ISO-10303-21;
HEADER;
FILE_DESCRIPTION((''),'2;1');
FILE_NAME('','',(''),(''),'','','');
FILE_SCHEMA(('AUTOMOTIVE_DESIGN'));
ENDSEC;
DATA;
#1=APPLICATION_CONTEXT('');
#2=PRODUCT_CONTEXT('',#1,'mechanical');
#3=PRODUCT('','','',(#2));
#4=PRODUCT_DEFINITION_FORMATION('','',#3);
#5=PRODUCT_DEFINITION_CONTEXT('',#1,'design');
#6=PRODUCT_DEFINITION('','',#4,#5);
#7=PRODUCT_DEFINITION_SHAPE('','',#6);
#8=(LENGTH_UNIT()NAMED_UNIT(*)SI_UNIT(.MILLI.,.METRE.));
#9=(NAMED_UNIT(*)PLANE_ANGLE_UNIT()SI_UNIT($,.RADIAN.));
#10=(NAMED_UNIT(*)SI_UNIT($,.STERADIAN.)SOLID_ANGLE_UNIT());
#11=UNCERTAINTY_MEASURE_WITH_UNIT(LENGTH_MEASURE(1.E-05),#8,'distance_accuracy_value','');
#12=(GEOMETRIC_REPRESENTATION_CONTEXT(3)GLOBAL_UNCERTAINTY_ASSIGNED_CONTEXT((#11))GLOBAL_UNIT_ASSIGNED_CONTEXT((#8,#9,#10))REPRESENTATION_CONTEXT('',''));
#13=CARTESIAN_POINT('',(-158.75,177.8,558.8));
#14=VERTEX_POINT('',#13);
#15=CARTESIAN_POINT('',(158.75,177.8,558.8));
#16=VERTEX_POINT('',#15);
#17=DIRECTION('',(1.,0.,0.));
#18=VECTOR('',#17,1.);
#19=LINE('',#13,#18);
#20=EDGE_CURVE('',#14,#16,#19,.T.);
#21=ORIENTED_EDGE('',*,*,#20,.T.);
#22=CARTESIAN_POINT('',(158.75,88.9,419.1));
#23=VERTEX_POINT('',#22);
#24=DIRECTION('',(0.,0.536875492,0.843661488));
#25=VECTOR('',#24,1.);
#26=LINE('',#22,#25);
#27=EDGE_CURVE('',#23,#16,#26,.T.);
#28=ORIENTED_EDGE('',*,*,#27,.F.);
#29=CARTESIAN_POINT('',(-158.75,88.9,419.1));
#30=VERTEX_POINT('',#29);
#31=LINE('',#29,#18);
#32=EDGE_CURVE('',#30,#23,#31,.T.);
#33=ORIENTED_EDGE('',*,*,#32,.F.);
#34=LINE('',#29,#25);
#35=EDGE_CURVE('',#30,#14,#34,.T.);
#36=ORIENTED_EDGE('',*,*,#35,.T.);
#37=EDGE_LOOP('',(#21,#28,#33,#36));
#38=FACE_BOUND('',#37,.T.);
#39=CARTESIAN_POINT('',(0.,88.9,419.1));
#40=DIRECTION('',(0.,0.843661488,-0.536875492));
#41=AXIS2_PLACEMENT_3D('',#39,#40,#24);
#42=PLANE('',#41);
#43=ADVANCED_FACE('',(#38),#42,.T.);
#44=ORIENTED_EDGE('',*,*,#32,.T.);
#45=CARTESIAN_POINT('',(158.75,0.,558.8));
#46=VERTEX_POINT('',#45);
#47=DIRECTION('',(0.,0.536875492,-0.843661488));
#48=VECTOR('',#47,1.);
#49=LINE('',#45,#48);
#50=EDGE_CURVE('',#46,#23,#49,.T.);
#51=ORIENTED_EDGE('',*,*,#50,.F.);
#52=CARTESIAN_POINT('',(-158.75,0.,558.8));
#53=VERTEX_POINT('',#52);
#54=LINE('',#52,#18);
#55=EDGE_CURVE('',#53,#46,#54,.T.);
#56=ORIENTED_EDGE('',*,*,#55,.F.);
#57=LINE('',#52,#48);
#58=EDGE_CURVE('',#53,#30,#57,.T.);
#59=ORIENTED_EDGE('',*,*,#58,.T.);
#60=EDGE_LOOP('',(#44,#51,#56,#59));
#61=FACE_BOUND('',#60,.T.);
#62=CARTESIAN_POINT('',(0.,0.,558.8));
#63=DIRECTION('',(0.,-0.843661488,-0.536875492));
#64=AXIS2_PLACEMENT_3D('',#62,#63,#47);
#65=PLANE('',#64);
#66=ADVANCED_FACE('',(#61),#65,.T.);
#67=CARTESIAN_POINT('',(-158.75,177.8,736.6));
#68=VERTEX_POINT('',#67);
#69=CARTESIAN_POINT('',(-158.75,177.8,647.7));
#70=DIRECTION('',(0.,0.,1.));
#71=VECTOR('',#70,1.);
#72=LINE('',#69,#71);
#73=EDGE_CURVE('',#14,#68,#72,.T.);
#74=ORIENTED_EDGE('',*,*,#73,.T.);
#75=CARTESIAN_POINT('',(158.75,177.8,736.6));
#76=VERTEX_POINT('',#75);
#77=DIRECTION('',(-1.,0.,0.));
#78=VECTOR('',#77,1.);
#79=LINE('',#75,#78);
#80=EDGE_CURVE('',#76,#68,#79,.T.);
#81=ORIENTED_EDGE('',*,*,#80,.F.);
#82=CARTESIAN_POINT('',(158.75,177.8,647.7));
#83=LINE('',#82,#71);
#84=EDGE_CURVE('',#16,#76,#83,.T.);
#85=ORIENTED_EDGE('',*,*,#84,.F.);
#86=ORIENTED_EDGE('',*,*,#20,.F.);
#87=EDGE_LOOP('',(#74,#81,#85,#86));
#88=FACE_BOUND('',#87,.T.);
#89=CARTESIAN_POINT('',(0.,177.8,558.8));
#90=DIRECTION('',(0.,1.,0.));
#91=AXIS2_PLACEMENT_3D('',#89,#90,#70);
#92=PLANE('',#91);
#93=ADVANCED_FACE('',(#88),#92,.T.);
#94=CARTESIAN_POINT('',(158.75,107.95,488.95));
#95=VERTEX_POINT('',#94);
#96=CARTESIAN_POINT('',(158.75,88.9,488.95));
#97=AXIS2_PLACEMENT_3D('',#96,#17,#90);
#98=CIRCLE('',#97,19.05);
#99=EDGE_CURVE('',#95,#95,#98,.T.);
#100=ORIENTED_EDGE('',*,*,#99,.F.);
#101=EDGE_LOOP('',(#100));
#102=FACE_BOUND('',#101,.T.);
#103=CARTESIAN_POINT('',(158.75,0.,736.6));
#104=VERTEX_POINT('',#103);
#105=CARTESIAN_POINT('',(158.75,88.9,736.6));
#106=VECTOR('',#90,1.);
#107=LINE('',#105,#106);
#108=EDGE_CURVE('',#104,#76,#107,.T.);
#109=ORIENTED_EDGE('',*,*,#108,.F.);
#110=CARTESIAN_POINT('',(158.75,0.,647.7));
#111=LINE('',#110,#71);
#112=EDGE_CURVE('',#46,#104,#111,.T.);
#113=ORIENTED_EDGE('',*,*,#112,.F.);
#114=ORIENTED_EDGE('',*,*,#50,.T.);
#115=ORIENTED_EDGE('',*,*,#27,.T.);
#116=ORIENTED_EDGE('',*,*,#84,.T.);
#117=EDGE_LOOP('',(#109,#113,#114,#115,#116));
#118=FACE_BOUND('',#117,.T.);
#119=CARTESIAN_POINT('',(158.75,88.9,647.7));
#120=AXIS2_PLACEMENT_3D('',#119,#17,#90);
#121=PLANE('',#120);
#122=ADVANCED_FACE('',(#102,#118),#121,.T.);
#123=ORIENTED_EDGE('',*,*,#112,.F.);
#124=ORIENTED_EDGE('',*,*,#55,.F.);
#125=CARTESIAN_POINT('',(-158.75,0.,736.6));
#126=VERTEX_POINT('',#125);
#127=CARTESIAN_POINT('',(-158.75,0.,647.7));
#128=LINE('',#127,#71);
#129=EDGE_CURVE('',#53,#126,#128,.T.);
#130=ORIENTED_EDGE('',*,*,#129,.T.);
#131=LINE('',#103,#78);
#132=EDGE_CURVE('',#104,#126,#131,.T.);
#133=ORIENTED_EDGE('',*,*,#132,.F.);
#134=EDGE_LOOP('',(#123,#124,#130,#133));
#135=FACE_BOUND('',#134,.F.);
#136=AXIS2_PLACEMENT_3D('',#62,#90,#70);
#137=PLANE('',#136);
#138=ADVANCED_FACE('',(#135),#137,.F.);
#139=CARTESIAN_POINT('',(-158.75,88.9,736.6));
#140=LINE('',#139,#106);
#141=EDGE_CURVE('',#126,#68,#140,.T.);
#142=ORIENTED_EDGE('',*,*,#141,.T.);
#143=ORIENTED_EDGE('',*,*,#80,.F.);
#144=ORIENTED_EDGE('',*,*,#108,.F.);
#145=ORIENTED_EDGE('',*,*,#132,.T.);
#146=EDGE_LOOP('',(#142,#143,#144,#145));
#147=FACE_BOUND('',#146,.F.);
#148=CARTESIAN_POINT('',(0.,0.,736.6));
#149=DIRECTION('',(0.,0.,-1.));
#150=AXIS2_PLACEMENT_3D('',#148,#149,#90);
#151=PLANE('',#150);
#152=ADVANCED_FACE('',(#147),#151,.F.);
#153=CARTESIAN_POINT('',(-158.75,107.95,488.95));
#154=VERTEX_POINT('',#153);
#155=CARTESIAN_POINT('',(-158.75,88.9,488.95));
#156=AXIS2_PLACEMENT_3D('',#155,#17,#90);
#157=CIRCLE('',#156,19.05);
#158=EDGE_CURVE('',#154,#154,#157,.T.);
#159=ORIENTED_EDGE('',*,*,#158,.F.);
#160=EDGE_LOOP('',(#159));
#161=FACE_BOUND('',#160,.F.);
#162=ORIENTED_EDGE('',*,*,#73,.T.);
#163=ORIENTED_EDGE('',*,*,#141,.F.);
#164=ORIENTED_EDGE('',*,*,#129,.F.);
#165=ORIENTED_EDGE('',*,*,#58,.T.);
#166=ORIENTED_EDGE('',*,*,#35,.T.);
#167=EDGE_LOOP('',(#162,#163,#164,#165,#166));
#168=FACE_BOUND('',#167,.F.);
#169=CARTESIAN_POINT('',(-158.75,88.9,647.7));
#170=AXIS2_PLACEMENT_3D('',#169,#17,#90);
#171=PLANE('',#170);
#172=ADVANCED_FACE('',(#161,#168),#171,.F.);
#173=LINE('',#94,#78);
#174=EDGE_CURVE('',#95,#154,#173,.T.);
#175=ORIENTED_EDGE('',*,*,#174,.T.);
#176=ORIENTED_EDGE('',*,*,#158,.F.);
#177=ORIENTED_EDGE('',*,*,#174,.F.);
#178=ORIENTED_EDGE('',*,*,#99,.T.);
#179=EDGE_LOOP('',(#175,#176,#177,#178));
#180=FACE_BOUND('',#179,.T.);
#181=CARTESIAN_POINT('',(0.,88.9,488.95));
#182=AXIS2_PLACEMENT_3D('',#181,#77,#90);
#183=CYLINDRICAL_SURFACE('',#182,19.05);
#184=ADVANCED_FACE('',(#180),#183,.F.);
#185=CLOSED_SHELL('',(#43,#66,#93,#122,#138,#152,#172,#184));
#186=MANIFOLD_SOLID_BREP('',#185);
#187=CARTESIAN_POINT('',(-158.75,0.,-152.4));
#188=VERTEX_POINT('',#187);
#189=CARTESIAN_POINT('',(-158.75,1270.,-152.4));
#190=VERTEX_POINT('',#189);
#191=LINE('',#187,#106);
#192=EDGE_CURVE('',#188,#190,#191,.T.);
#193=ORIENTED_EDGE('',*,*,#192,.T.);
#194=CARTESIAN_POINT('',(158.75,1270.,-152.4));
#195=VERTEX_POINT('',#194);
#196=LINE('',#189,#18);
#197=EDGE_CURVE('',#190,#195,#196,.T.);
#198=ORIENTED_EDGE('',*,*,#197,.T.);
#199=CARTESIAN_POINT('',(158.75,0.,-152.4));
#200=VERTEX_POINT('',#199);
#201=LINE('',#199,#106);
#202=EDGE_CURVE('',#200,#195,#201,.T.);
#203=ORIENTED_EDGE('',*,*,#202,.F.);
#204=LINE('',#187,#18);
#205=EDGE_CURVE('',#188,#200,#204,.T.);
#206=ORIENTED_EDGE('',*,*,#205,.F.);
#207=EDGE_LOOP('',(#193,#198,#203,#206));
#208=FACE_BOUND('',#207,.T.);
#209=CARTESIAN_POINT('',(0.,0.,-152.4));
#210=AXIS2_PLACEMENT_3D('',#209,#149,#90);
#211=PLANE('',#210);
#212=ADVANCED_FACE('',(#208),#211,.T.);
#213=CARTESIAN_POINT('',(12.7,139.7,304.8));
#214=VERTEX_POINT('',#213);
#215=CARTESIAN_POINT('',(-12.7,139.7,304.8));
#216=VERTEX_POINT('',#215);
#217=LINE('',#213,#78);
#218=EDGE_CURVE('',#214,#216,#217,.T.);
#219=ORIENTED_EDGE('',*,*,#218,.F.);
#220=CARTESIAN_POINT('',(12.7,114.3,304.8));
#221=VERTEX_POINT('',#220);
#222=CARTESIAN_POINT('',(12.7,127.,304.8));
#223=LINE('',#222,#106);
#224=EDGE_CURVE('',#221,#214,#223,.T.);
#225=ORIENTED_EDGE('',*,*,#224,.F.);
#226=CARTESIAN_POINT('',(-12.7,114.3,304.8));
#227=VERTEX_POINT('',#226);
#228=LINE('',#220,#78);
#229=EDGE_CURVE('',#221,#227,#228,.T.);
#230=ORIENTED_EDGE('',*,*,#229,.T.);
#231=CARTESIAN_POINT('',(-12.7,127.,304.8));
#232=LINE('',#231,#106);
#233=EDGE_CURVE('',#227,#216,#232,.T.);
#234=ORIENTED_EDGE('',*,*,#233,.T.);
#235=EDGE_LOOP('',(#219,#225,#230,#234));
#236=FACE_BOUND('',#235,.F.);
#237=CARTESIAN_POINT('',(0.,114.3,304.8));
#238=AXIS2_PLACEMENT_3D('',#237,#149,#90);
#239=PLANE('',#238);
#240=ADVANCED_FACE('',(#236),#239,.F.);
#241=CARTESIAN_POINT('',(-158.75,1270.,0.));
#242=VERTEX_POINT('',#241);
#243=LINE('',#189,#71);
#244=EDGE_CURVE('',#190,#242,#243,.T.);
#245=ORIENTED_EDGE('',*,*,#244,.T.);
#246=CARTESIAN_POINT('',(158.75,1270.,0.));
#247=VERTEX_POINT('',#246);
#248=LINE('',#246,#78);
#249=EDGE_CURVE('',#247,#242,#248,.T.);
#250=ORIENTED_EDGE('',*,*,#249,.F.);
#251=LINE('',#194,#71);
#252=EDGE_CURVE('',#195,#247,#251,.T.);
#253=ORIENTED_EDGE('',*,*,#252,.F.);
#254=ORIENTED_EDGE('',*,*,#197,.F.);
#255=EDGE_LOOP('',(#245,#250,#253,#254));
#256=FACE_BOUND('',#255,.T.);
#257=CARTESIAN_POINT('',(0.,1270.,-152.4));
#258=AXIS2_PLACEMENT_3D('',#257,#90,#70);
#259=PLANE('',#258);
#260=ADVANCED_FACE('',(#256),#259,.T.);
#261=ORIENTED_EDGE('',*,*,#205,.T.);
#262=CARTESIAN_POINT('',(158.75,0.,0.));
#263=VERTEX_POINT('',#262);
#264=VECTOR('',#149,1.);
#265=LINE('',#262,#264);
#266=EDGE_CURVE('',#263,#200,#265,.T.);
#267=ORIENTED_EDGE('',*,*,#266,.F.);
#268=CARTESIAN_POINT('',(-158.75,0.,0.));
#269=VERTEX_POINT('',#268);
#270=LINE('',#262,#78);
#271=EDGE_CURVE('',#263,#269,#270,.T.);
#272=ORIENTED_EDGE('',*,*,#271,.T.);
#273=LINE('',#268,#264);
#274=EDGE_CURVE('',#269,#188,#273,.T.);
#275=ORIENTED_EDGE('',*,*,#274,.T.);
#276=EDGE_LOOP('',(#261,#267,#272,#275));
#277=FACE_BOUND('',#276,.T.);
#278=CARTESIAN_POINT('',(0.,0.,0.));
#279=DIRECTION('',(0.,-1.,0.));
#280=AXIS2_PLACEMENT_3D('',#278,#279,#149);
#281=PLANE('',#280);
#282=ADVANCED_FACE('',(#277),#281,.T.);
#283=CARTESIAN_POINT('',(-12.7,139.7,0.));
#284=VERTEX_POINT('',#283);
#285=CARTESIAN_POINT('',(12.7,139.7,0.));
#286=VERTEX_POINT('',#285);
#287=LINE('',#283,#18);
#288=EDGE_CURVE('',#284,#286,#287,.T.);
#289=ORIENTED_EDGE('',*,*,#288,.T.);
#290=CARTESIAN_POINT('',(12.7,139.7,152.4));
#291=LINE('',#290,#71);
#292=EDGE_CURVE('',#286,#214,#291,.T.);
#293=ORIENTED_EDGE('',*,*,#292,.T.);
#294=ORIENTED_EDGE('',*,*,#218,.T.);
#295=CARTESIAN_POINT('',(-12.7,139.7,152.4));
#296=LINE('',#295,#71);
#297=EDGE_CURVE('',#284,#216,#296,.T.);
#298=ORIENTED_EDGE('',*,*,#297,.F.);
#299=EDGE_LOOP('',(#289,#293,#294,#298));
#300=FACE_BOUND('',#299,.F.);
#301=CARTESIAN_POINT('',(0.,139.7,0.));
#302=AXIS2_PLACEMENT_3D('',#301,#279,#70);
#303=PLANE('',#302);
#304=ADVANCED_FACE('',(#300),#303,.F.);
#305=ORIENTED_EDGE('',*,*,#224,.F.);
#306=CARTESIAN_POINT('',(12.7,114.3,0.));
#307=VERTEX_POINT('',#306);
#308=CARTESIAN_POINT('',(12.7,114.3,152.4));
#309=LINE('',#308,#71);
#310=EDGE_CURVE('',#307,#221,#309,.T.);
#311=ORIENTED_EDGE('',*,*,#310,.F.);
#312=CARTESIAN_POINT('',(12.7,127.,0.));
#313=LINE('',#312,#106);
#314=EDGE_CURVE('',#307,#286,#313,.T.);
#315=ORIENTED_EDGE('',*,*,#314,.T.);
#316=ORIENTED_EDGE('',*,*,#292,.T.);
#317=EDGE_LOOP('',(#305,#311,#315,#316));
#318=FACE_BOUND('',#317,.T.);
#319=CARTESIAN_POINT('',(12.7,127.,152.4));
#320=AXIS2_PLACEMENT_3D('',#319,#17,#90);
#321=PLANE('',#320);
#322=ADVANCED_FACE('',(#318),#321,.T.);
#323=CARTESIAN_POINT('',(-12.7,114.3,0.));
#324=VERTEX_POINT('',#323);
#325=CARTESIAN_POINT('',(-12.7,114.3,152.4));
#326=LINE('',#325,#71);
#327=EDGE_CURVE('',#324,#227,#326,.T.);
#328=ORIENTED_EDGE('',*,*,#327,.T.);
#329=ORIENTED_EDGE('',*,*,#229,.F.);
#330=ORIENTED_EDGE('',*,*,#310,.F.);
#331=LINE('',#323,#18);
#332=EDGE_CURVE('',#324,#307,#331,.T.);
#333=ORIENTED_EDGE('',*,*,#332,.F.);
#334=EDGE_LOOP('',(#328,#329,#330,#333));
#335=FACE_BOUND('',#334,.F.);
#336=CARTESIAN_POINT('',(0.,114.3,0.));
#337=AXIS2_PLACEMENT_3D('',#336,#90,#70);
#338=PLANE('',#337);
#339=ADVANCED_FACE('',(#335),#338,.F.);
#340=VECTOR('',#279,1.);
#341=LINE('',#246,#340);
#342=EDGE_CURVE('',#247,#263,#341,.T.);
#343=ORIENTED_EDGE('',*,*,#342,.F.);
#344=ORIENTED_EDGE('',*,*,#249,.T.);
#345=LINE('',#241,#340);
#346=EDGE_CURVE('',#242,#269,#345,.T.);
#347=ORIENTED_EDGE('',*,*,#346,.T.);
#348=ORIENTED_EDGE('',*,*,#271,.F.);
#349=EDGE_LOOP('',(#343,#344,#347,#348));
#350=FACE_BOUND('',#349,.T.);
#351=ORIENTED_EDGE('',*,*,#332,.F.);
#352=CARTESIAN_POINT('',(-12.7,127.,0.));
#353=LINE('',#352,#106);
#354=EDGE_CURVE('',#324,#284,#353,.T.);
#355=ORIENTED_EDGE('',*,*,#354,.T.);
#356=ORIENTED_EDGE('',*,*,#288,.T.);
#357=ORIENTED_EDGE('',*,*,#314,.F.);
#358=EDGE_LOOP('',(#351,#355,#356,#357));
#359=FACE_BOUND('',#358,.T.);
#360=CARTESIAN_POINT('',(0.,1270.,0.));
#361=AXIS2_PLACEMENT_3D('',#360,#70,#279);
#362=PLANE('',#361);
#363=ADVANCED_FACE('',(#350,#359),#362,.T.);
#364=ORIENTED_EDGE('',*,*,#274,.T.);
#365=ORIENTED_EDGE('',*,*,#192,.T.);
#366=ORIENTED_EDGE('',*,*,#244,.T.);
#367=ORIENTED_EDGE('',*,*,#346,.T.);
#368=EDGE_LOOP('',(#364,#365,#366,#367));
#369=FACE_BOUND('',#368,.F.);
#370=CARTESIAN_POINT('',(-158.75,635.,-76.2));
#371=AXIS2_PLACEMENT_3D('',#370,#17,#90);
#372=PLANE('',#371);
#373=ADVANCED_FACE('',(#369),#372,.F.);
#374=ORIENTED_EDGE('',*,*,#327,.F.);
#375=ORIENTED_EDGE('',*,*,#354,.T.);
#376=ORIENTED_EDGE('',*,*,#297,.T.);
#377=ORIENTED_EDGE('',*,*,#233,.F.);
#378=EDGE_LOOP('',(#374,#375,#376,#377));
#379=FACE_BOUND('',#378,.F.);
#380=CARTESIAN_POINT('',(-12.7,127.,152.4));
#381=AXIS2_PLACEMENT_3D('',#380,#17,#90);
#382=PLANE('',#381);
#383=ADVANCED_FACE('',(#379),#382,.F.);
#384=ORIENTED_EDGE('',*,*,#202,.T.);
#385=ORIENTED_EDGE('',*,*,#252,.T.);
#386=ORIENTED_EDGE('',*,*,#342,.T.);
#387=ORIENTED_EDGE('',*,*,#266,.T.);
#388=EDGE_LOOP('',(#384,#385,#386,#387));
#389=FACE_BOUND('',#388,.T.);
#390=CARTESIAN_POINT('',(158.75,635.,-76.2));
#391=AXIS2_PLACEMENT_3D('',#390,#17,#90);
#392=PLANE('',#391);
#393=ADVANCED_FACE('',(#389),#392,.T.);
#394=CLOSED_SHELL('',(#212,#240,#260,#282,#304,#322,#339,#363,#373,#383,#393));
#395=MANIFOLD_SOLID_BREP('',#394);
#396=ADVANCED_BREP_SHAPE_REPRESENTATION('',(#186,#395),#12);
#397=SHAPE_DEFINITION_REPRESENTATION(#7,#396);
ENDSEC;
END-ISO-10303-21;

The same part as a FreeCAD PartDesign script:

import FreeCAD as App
import Part
import Sketcher
Q = App.Units.Quantity


def add_polygon(sketch, points):
    """Adds a closed chain of lines whose ends are joined by coincident constraints."""
    first, n = sketch.GeometryCount, len(points)
    for a, b in zip(points, points[1:] + points[:1]):
        sketch.addGeometry(Part.LineSegment(App.Vector(*a, 0), App.Vector(*b, 0)), False)
    for i in range(n):
        sketch.addConstraint(Sketcher.Constraint("Coincident", first + i, 2, first + (i + 1) % n, 1))

doc = App.newDocument("Part")
body = doc.addObject("PartDesign::Body", "Body")
body.AllowCompound = True

# Sketch on YZ plane
sketch1 = body.newObject("Sketcher::SketchObject", "Sketch")
sketch1.AttachmentSupport = (doc.getObject("YZ_Plane"), [""])
sketch1.MapMode = "FlatFace"
add_polygon(sketch1, [(0, 737), (0, 559), (89, 419), (178, 559), (178, 737)])  # lines 0-4
sketch1.addGeometry(Part.Circle(App.Vector(89, 489, 0), App.Vector(0, 0, 1), 19), False)  # 5
add_polygon(sketch1, [(0, 0), (0, -152), (1270, -152), (1270, 0)])  # lines 6-9
sketch1.addConstraint([
    Sketcher.Constraint("Vertical", 0),
    Sketcher.Constraint("Vertical", 3),
    Sketcher.Constraint("Horizontal", 4),
    Sketcher.Constraint("Vertical", 6),
    Sketcher.Constraint("Horizontal", 7),
    Sketcher.Constraint("Vertical", 8),
    Sketcher.Constraint("Horizontal", 9),
    Sketcher.Constraint("Coincident", 9, 2, -1, 1),
    Sketcher.Constraint("PointOnObject", 0, 2, -2),
    Sketcher.Constraint("Horizontal", 0, 2, 2, 2),
    Sketcher.Constraint("Vertical", 5, 3, 1, 2),
    Sketcher.Constraint("Equal", 4, 0),
    Sketcher.Constraint("Equal", 1, 2),
    Sketcher.Constraint("Diameter", 5, Q("1.5 in")),
    Sketcher.Constraint("DistanceX", 4, 2, 4, 1, Q("7 in")),
    Sketcher.Constraint("DistanceX", 7, 1, 7, 2, Q("50 in")),
    Sketcher.Constraint("DistanceY", 6, 2, 6, 1, Q("6 in")),
    Sketcher.Constraint("DistanceY", -1, 1, 0, 2, Q("22 in")),
    Sketcher.Constraint("DistanceY", -1, 1, 1, 2, Q("16.5 in")),
    Sketcher.Constraint("DistanceY", -1, 1, 5, 3, Q("19.25 in")),
])
pad1 = body.newObject("PartDesign::Pad", "Pad")
pad1.Profile = sketch1
pad1.Type = "TwoLengths"
pad1.Length = Q("6.25 in")
pad1.Length2 = Q("6.25 in")

# Sketch on YZ plane
sketch2 = body.newObject("Sketcher::SketchObject", "Sketch001")
sketch2.AttachmentSupport = (doc.getObject("YZ_Plane"), [""])
sketch2.MapMode = "FlatFace"
add_polygon(sketch2, [(114, 305), (114, 0), (140, 0), (140, 305)])  # lines 0-3
sketch2.addConstraint([
    Sketcher.Constraint("Vertical", 0),
    Sketcher.Constraint("Horizontal", 1),
    Sketcher.Constraint("Vertical", 2),
    Sketcher.Constraint("Horizontal", 3),
    Sketcher.Constraint("PointOnObject", 0, 2, -1),
    Sketcher.Constraint("DistanceX", 1, 1, 1, 2, Q("1 in")),
    Sketcher.Constraint("DistanceY", 0, 2, 0, 1, Q("12 in")),
    Sketcher.Constraint("DistanceX", -1, 1, 0, 2, Q("4.5 in")),
])
pad2 = body.newObject("PartDesign::Pad", "Pad001")
pad2.Profile = sketch2
pad2.Type = "TwoLengths"
pad2.Length = Q("0.5 in")
pad2.Length2 = Q("0.5 in")

doc.recompute()
